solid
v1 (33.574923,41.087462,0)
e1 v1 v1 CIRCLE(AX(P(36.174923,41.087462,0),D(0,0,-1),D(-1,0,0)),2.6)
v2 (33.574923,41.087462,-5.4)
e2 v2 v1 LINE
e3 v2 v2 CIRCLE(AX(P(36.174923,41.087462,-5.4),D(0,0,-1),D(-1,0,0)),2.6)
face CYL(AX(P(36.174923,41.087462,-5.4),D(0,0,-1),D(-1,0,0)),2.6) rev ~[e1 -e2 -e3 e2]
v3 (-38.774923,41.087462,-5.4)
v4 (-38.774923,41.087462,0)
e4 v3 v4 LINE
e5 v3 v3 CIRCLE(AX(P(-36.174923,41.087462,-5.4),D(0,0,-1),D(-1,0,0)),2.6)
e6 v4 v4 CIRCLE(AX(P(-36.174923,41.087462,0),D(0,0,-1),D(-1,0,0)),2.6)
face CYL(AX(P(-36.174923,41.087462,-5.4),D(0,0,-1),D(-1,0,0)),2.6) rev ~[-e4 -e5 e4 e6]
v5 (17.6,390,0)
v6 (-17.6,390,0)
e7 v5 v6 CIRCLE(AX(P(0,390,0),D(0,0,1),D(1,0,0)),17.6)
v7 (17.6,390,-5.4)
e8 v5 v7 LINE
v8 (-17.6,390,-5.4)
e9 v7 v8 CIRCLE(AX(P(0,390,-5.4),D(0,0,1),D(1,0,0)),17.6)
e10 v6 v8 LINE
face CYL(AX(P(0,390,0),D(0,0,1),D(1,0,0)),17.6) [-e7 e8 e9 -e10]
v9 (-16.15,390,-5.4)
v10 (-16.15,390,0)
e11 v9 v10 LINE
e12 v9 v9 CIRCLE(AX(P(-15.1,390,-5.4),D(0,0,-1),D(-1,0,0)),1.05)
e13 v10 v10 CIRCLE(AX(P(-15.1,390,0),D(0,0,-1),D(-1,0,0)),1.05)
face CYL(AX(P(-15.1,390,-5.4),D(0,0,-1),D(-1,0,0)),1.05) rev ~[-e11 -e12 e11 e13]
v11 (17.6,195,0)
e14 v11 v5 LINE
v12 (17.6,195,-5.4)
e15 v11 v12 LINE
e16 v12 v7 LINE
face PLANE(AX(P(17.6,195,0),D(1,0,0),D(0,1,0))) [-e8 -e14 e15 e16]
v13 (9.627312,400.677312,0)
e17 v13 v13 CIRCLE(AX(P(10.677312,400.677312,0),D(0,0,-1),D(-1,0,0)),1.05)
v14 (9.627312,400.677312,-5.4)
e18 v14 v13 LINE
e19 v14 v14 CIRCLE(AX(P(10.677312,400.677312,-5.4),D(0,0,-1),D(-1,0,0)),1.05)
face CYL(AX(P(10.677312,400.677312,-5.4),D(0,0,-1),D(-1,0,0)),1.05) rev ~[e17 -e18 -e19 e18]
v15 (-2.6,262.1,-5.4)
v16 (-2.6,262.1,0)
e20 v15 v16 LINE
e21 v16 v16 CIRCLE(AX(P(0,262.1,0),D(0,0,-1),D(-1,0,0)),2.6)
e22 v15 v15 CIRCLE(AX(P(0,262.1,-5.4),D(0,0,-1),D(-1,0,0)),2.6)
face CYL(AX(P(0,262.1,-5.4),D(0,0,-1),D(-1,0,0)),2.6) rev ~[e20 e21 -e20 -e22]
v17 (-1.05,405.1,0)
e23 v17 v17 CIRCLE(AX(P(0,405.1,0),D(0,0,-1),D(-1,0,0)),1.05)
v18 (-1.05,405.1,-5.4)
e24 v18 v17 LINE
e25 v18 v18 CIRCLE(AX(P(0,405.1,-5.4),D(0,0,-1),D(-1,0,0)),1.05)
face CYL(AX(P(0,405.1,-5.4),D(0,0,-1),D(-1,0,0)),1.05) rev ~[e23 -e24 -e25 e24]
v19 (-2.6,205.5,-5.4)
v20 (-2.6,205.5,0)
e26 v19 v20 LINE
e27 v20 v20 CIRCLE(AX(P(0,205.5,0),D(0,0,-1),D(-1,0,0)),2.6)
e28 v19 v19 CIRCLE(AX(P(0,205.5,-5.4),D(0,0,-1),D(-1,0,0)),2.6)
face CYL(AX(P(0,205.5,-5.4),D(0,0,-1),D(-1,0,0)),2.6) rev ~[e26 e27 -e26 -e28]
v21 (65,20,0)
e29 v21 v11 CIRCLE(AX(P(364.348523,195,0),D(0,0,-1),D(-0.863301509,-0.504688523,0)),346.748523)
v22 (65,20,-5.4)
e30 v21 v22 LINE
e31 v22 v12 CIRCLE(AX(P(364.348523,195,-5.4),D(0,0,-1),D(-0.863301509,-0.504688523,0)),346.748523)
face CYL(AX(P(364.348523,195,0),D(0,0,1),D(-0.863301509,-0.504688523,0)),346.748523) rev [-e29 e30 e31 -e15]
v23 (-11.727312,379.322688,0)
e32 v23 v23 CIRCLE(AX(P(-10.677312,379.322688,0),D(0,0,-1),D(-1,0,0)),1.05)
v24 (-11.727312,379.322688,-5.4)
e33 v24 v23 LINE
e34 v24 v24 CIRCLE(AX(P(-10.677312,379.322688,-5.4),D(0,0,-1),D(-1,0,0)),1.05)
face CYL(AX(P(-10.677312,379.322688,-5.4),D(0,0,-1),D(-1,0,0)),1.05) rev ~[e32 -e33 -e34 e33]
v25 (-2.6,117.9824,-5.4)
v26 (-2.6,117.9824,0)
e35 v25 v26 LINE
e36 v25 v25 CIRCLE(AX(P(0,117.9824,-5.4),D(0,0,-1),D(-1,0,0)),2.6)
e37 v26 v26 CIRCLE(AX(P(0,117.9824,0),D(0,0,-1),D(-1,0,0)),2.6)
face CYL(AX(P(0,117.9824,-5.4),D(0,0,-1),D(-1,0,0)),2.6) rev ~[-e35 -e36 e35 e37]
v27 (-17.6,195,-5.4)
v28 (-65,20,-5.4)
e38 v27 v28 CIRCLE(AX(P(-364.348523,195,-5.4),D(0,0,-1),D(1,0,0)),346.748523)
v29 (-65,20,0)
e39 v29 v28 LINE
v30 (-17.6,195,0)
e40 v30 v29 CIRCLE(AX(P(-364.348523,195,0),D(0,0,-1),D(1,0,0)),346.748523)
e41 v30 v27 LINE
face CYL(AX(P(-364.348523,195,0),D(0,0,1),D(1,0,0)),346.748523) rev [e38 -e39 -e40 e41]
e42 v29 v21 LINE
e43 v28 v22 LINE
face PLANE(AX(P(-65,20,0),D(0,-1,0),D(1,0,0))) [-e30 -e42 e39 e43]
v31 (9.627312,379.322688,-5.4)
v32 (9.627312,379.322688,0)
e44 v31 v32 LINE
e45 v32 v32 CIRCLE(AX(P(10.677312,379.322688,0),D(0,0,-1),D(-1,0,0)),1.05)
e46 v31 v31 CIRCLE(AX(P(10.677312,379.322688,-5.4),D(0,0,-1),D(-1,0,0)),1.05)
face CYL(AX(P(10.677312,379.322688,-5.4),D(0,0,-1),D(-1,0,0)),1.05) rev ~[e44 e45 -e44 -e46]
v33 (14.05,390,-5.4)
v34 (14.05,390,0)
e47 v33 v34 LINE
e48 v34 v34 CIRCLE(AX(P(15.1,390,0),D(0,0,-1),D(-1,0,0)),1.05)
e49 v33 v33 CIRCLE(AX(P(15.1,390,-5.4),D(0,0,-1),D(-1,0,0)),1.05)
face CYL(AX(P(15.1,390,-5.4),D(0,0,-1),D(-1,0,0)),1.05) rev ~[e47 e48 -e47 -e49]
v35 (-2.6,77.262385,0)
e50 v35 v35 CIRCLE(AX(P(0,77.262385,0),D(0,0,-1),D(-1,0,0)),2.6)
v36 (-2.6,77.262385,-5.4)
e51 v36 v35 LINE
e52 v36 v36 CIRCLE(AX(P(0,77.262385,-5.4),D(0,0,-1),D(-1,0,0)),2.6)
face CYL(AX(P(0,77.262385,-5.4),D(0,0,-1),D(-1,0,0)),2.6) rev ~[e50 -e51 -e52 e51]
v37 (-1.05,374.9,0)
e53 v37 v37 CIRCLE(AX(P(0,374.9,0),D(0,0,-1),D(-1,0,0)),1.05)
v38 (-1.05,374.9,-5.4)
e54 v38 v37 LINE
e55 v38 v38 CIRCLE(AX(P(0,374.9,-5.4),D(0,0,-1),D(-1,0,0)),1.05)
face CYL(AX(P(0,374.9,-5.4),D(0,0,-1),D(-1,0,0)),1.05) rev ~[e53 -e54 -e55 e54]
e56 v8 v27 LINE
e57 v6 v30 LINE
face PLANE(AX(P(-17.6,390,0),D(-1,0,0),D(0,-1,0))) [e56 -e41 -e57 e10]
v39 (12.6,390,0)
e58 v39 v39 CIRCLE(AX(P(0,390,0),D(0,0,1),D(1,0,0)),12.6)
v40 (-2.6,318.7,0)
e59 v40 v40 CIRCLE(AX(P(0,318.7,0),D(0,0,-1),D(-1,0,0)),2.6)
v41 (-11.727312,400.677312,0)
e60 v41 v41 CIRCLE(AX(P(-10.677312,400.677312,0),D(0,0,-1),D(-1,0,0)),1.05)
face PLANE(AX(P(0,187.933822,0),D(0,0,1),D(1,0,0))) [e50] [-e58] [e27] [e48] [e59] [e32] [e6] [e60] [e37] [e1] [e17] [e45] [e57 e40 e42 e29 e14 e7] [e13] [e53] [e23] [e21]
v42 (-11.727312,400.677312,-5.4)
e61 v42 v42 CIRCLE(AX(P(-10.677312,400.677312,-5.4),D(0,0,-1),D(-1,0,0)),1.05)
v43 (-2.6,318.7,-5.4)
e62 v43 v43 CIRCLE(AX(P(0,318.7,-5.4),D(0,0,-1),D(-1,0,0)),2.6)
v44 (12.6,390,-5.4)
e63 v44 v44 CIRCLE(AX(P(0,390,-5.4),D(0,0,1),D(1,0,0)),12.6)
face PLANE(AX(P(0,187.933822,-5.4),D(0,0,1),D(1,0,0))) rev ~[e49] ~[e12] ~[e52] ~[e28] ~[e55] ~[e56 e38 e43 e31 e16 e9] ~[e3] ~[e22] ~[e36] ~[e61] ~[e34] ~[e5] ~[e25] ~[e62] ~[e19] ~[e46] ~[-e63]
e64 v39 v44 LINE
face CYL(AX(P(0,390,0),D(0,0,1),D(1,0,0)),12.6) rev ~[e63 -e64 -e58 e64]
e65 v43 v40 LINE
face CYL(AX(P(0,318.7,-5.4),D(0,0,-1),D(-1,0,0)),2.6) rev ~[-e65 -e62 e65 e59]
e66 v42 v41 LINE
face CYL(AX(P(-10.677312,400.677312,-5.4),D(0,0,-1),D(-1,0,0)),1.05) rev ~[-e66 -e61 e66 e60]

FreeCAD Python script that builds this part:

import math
import FreeCAD as App
import Part
import Sketcher

V = App.Vector
Q = App.Units.Quantity

doc = App.newDocument("Part")
body = doc.addObject("PartDesign::Body", "Body")

# Sketch on XY plane
sketch1 = body.newObject("Sketcher::SketchObject", "Sketch")
sketch1.AttachmentSupport = (doc.getObject("XY_Plane"), [""])
sketch1.MapMode = "FlatFace"
sketch1.addGeometry(Part.LineSegment(V(-65, 20, 0), V(65, 20, 0)), False)
sketch1.addGeometry(Part.ArcOfCircle(Part.Circle(V(364, 195, 0), V(0, 0, 1), 347), math.radians(180), math.radians(210)), False)
sketch1.addGeometry(Part.LineSegment(V(18, 195, 0), V(18, 390, 0)), False)
sketch1.addGeometry(Part.ArcOfCircle(Part.Circle(V(0, 390, 0), V(0, 0, 1), 18), math.radians(0), math.radians(180)), False)
sketch1.addGeometry(Part.LineSegment(V(-18, 390, 0), V(-18, 195, 0)), False)
sketch1.addGeometry(Part.ArcOfCircle(Part.Circle(V(-364, 195, 0), V(0, 0, 1), 347), math.radians(-30), math.radians(0)), False)
sketch1.addGeometry(Part.Circle(V(0, 390, 0), V(0, 0, 1), 13), False)
sketch1.addConstraint(Sketcher.Constraint("Coincident", 0, 2, 1, 2))
sketch1.addConstraint(Sketcher.Constraint("Tangent", 1, 1, 2, 1))
sketch1.addConstraint(Sketcher.Constraint("Tangent", 2, 2, 3, 1))
sketch1.addConstraint(Sketcher.Constraint("Tangent", 3, 2, 4, 1))
sketch1.addConstraint(Sketcher.Constraint("Tangent", 4, 2, 5, 2))
sketch1.addConstraint(Sketcher.Constraint("Coincident", 5, 1, 0, 1))
sketch1.addConstraint(Sketcher.Constraint("Horizontal", 0))
sketch1.addConstraint(Sketcher.Constraint("Vertical", 2))
sketch1.addConstraint(Sketcher.Constraint("Vertical", 4))
sketch1.addConstraint(Sketcher.Constraint("Coincident", 6, 3, 3, 3))
sketch1.addConstraint(Sketcher.Constraint("Equal", 1, 5))
sketch1.addConstraint(Sketcher.Constraint("Symmetric", 1, 3, 5, 3, -2))
sketch1.addConstraint(Sketcher.Constraint("Diameter", 6, Q("25.2 mm")))
sketch1.addConstraint(Sketcher.Constraint("Radius", 3, Q("17.6 mm")))
sketch1.addConstraint(Sketcher.Constraint("DistanceX", 0, 1, 0, 2, Q("130 mm")))
sketch1.addConstraint(Sketcher.Constraint("DistanceY", 2, 1, 2, 2, Q("195 mm")))
sketch1.addConstraint(Sketcher.Constraint("DistanceY", -1, 1, 1, 3, Q("195 mm")))
sketch1.addConstraint(Sketcher.Constraint("DistanceY", -1, 1, 0, 2, Q("20 mm")))
pad1 = body.newObject("PartDesign::Pad", "Pad")
pad1.Profile = sketch1
pad1.Length = 5.4
pad1.Reversed = True

# Sketch on XY plane
sketch2 = body.newObject("Sketcher::SketchObject", "Sketch001")
sketch2.AttachmentSupport = (doc.getObject("XY_Plane"), [""])
sketch2.MapMode = "FlatFace"
sketch2.AttachmentOffset = App.Placement(V(0, 0, -5.4), App.Rotation())
sketch2.addGeometry(Part.Circle(V(-10.7, 400.7, 0), V(0, 0, 1), 1.1), False)
sketch2.addGeometry(Part.Circle(V(0, 405.1, 0), V(0, 0, 1), 1.1), False)
sketch2.addGeometry(Part.Circle(V(10.7, 400.7, 0), V(0, 0, 1), 1.1), False)
sketch2.addGeometry(Part.Circle(V(15.1, 390, 0), V(0, 0, 1), 1.1), False)
sketch2.addGeometry(Part.Circle(V(10.7, 379.3, 0), V(0, 0, 1), 1.1), False)
sketch2.addGeometry(Part.Circle(V(0, 374.9, 0), V(0, 0, 1), 1.1), False)
sketch2.addGeometry(Part.Circle(V(-10.7, 379.3, 0), V(0, 0, 1), 1.1), False)
sketch2.addGeometry(Part.Circle(V(-15.1, 390, 0), V(0, 0, 1), 1.1), False)
sketch2.addGeometry(Part.Circle(V(0, 262.1, 0), V(0, 0, 1), 2.6), False)
sketch2.addGeometry(Part.Circle(V(0, 318.7, 0), V(0, 0, 1), 2.6), False)
sketch2.addGeometry(Part.Circle(V(36.2, 41.1, 0), V(0, 0, 1), 2.6), False)
sketch2.addGeometry(Part.Circle(V(-36.2, 41.1, 0), V(0, 0, 1), 2.6), False)
sketch2.addGeometry(Part.Circle(V(0, 77.3, 0), V(0, 0, 1), 2.6), False)
sketch2.addGeometry(Part.Circle(V(0, 118, 0), V(0, 0, 1), 2.6), False)
sketch2.addGeometry(Part.Circle(V(0, 205.5, 0), V(0, 0, 1), 2.6), False)
sketch2.addConstraint(Sketcher.Constraint("Equal", 0, 1))
sketch2.addConstraint(Sketcher.Constraint("Equal", 1, 2))
sketch2.addConstraint(Sketcher.Constraint("Equal", 2, 3))
sketch2.addConstraint(Sketcher.Constraint("Equal", 3, 4))
sketch2.addConstraint(Sketcher.Constraint("Equal", 4, 5))
sketch2.addConstraint(Sketcher.Constraint("Equal", 5, 6))
sketch2.addConstraint(Sketcher.Constraint("Equal", 6, 7))
sketch2.addConstraint(Sketcher.Constraint("Equal", 8, 9))
sketch2.addConstraint(Sketcher.Constraint("Equal", 9, 10))
sketch2.addConstraint(Sketcher.Constraint("Equal", 10, 11))
sketch2.addConstraint(Sketcher.Constraint("Equal", 11, 12))
sketch2.addConstraint(Sketcher.Constraint("Equal", 12, 13))
sketch2.addConstraint(Sketcher.Constraint("Equal", 13, 14))
sketch2.addConstraint(Sketcher.Constraint("Symmetric", 0, 3, 2, 3, -2))
sketch2.addConstraint(Sketcher.Constraint("Symmetric", 4, 3, 6, 3, -2))
sketch2.addConstraint(Sketcher.Constraint("Symmetric", 3, 3, 7, 3, -2))
sketch2.addConstraint(Sketcher.Constraint("Symmetric", 10, 3, 11, 3, -2))
sketch2.addConstraint(Sketcher.Constraint("PointOnObject", 1, 3, -2))
sketch2.addConstraint(Sketcher.Constraint("PointOnObject", 5, 3, -2))
sketch2.addConstraint(Sketcher.Constraint("PointOnObject", 8, 3, -2))
sketch2.addConstraint(Sketcher.Constraint("PointOnObject", 9, 3, -2))
sketch2.addConstraint(Sketcher.Constraint("PointOnObject", 12, 3, -2))
sketch2.addConstraint(Sketcher.Constraint("PointOnObject", 13, 3, -2))
sketch2.addConstraint(Sketcher.Constraint("PointOnObject", 14, 3, -2))
sketch2.addConstraint(Sketcher.Constraint("Vertical", 2, 3, 4, 3))
sketch2.addConstraint(Sketcher.Constraint("Diameter", 0, Q("2.1 mm")))
sketch2.addConstraint(Sketcher.Constraint("Diameter", 8, Q("5.2 mm")))
sketch2.addConstraint(Sketcher.Constraint("DistanceY", -1, 1, 3, 3, Q("390 mm")))
sketch2.addConstraint(Sketcher.Constraint("DistanceY", -1, 1, 1, 3, Q("405.1 mm")))
sketch2.addConstraint(Sketcher.Constraint("DistanceX", -1, 1, 3, 3, Q("15.1 mm")))
sketch2.addConstraint(Sketcher.Constraint("DistanceY", -1, 1, 5, 3, Q("374.9 mm")))
sketch2.addConstraint(Sketcher.Constraint("DistanceY", -1, 1, 8, 3, Q("262.1 mm")))
sketch2.addConstraint(Sketcher.Constraint("DistanceY", -1, 1, 9, 3, Q("318.7 mm")))
sketch2.addConstraint(Sketcher.Constraint("DistanceY", -1, 1, 14, 3, Q("205.5 mm")))
sketch2.addConstraint(Sketcher.Constraint("DistanceY", -1, 1, 13, 3, Q("117.9824 mm")))
sketch2.addConstraint(Sketcher.Constraint("DistanceY", -1, 1, 10, 3, Q("41.087462 mm")))
sketch2.addConstraint(Sketcher.Constraint("DistanceX", 4, 3, 10, 3, Q("25.497611 mm")))
sketch2.addConstraint(Sketcher.Constraint("DistanceX", 0, 3, -1, 1, Q("10.677312 mm")))
sketch2.addConstraint(Sketcher.Constraint("DistanceY", -1, 1, 0, 3, Q("400.677312 mm")))
sketch2.addConstraint(Sketcher.Constraint("DistanceY", -1, 1, 4, 3, Q("379.322688 mm")))
sketch2.addConstraint(Sketcher.Constraint("DistanceY", -1, 1, 12, 3, Q("77.262385 mm")))
pocket1 = body.newObject("PartDesign::Pocket", "Pocket")
pocket1.Profile = sketch2
pocket1.Type = "ThroughAll"
pocket1.Reversed = True

doc.recompute()
